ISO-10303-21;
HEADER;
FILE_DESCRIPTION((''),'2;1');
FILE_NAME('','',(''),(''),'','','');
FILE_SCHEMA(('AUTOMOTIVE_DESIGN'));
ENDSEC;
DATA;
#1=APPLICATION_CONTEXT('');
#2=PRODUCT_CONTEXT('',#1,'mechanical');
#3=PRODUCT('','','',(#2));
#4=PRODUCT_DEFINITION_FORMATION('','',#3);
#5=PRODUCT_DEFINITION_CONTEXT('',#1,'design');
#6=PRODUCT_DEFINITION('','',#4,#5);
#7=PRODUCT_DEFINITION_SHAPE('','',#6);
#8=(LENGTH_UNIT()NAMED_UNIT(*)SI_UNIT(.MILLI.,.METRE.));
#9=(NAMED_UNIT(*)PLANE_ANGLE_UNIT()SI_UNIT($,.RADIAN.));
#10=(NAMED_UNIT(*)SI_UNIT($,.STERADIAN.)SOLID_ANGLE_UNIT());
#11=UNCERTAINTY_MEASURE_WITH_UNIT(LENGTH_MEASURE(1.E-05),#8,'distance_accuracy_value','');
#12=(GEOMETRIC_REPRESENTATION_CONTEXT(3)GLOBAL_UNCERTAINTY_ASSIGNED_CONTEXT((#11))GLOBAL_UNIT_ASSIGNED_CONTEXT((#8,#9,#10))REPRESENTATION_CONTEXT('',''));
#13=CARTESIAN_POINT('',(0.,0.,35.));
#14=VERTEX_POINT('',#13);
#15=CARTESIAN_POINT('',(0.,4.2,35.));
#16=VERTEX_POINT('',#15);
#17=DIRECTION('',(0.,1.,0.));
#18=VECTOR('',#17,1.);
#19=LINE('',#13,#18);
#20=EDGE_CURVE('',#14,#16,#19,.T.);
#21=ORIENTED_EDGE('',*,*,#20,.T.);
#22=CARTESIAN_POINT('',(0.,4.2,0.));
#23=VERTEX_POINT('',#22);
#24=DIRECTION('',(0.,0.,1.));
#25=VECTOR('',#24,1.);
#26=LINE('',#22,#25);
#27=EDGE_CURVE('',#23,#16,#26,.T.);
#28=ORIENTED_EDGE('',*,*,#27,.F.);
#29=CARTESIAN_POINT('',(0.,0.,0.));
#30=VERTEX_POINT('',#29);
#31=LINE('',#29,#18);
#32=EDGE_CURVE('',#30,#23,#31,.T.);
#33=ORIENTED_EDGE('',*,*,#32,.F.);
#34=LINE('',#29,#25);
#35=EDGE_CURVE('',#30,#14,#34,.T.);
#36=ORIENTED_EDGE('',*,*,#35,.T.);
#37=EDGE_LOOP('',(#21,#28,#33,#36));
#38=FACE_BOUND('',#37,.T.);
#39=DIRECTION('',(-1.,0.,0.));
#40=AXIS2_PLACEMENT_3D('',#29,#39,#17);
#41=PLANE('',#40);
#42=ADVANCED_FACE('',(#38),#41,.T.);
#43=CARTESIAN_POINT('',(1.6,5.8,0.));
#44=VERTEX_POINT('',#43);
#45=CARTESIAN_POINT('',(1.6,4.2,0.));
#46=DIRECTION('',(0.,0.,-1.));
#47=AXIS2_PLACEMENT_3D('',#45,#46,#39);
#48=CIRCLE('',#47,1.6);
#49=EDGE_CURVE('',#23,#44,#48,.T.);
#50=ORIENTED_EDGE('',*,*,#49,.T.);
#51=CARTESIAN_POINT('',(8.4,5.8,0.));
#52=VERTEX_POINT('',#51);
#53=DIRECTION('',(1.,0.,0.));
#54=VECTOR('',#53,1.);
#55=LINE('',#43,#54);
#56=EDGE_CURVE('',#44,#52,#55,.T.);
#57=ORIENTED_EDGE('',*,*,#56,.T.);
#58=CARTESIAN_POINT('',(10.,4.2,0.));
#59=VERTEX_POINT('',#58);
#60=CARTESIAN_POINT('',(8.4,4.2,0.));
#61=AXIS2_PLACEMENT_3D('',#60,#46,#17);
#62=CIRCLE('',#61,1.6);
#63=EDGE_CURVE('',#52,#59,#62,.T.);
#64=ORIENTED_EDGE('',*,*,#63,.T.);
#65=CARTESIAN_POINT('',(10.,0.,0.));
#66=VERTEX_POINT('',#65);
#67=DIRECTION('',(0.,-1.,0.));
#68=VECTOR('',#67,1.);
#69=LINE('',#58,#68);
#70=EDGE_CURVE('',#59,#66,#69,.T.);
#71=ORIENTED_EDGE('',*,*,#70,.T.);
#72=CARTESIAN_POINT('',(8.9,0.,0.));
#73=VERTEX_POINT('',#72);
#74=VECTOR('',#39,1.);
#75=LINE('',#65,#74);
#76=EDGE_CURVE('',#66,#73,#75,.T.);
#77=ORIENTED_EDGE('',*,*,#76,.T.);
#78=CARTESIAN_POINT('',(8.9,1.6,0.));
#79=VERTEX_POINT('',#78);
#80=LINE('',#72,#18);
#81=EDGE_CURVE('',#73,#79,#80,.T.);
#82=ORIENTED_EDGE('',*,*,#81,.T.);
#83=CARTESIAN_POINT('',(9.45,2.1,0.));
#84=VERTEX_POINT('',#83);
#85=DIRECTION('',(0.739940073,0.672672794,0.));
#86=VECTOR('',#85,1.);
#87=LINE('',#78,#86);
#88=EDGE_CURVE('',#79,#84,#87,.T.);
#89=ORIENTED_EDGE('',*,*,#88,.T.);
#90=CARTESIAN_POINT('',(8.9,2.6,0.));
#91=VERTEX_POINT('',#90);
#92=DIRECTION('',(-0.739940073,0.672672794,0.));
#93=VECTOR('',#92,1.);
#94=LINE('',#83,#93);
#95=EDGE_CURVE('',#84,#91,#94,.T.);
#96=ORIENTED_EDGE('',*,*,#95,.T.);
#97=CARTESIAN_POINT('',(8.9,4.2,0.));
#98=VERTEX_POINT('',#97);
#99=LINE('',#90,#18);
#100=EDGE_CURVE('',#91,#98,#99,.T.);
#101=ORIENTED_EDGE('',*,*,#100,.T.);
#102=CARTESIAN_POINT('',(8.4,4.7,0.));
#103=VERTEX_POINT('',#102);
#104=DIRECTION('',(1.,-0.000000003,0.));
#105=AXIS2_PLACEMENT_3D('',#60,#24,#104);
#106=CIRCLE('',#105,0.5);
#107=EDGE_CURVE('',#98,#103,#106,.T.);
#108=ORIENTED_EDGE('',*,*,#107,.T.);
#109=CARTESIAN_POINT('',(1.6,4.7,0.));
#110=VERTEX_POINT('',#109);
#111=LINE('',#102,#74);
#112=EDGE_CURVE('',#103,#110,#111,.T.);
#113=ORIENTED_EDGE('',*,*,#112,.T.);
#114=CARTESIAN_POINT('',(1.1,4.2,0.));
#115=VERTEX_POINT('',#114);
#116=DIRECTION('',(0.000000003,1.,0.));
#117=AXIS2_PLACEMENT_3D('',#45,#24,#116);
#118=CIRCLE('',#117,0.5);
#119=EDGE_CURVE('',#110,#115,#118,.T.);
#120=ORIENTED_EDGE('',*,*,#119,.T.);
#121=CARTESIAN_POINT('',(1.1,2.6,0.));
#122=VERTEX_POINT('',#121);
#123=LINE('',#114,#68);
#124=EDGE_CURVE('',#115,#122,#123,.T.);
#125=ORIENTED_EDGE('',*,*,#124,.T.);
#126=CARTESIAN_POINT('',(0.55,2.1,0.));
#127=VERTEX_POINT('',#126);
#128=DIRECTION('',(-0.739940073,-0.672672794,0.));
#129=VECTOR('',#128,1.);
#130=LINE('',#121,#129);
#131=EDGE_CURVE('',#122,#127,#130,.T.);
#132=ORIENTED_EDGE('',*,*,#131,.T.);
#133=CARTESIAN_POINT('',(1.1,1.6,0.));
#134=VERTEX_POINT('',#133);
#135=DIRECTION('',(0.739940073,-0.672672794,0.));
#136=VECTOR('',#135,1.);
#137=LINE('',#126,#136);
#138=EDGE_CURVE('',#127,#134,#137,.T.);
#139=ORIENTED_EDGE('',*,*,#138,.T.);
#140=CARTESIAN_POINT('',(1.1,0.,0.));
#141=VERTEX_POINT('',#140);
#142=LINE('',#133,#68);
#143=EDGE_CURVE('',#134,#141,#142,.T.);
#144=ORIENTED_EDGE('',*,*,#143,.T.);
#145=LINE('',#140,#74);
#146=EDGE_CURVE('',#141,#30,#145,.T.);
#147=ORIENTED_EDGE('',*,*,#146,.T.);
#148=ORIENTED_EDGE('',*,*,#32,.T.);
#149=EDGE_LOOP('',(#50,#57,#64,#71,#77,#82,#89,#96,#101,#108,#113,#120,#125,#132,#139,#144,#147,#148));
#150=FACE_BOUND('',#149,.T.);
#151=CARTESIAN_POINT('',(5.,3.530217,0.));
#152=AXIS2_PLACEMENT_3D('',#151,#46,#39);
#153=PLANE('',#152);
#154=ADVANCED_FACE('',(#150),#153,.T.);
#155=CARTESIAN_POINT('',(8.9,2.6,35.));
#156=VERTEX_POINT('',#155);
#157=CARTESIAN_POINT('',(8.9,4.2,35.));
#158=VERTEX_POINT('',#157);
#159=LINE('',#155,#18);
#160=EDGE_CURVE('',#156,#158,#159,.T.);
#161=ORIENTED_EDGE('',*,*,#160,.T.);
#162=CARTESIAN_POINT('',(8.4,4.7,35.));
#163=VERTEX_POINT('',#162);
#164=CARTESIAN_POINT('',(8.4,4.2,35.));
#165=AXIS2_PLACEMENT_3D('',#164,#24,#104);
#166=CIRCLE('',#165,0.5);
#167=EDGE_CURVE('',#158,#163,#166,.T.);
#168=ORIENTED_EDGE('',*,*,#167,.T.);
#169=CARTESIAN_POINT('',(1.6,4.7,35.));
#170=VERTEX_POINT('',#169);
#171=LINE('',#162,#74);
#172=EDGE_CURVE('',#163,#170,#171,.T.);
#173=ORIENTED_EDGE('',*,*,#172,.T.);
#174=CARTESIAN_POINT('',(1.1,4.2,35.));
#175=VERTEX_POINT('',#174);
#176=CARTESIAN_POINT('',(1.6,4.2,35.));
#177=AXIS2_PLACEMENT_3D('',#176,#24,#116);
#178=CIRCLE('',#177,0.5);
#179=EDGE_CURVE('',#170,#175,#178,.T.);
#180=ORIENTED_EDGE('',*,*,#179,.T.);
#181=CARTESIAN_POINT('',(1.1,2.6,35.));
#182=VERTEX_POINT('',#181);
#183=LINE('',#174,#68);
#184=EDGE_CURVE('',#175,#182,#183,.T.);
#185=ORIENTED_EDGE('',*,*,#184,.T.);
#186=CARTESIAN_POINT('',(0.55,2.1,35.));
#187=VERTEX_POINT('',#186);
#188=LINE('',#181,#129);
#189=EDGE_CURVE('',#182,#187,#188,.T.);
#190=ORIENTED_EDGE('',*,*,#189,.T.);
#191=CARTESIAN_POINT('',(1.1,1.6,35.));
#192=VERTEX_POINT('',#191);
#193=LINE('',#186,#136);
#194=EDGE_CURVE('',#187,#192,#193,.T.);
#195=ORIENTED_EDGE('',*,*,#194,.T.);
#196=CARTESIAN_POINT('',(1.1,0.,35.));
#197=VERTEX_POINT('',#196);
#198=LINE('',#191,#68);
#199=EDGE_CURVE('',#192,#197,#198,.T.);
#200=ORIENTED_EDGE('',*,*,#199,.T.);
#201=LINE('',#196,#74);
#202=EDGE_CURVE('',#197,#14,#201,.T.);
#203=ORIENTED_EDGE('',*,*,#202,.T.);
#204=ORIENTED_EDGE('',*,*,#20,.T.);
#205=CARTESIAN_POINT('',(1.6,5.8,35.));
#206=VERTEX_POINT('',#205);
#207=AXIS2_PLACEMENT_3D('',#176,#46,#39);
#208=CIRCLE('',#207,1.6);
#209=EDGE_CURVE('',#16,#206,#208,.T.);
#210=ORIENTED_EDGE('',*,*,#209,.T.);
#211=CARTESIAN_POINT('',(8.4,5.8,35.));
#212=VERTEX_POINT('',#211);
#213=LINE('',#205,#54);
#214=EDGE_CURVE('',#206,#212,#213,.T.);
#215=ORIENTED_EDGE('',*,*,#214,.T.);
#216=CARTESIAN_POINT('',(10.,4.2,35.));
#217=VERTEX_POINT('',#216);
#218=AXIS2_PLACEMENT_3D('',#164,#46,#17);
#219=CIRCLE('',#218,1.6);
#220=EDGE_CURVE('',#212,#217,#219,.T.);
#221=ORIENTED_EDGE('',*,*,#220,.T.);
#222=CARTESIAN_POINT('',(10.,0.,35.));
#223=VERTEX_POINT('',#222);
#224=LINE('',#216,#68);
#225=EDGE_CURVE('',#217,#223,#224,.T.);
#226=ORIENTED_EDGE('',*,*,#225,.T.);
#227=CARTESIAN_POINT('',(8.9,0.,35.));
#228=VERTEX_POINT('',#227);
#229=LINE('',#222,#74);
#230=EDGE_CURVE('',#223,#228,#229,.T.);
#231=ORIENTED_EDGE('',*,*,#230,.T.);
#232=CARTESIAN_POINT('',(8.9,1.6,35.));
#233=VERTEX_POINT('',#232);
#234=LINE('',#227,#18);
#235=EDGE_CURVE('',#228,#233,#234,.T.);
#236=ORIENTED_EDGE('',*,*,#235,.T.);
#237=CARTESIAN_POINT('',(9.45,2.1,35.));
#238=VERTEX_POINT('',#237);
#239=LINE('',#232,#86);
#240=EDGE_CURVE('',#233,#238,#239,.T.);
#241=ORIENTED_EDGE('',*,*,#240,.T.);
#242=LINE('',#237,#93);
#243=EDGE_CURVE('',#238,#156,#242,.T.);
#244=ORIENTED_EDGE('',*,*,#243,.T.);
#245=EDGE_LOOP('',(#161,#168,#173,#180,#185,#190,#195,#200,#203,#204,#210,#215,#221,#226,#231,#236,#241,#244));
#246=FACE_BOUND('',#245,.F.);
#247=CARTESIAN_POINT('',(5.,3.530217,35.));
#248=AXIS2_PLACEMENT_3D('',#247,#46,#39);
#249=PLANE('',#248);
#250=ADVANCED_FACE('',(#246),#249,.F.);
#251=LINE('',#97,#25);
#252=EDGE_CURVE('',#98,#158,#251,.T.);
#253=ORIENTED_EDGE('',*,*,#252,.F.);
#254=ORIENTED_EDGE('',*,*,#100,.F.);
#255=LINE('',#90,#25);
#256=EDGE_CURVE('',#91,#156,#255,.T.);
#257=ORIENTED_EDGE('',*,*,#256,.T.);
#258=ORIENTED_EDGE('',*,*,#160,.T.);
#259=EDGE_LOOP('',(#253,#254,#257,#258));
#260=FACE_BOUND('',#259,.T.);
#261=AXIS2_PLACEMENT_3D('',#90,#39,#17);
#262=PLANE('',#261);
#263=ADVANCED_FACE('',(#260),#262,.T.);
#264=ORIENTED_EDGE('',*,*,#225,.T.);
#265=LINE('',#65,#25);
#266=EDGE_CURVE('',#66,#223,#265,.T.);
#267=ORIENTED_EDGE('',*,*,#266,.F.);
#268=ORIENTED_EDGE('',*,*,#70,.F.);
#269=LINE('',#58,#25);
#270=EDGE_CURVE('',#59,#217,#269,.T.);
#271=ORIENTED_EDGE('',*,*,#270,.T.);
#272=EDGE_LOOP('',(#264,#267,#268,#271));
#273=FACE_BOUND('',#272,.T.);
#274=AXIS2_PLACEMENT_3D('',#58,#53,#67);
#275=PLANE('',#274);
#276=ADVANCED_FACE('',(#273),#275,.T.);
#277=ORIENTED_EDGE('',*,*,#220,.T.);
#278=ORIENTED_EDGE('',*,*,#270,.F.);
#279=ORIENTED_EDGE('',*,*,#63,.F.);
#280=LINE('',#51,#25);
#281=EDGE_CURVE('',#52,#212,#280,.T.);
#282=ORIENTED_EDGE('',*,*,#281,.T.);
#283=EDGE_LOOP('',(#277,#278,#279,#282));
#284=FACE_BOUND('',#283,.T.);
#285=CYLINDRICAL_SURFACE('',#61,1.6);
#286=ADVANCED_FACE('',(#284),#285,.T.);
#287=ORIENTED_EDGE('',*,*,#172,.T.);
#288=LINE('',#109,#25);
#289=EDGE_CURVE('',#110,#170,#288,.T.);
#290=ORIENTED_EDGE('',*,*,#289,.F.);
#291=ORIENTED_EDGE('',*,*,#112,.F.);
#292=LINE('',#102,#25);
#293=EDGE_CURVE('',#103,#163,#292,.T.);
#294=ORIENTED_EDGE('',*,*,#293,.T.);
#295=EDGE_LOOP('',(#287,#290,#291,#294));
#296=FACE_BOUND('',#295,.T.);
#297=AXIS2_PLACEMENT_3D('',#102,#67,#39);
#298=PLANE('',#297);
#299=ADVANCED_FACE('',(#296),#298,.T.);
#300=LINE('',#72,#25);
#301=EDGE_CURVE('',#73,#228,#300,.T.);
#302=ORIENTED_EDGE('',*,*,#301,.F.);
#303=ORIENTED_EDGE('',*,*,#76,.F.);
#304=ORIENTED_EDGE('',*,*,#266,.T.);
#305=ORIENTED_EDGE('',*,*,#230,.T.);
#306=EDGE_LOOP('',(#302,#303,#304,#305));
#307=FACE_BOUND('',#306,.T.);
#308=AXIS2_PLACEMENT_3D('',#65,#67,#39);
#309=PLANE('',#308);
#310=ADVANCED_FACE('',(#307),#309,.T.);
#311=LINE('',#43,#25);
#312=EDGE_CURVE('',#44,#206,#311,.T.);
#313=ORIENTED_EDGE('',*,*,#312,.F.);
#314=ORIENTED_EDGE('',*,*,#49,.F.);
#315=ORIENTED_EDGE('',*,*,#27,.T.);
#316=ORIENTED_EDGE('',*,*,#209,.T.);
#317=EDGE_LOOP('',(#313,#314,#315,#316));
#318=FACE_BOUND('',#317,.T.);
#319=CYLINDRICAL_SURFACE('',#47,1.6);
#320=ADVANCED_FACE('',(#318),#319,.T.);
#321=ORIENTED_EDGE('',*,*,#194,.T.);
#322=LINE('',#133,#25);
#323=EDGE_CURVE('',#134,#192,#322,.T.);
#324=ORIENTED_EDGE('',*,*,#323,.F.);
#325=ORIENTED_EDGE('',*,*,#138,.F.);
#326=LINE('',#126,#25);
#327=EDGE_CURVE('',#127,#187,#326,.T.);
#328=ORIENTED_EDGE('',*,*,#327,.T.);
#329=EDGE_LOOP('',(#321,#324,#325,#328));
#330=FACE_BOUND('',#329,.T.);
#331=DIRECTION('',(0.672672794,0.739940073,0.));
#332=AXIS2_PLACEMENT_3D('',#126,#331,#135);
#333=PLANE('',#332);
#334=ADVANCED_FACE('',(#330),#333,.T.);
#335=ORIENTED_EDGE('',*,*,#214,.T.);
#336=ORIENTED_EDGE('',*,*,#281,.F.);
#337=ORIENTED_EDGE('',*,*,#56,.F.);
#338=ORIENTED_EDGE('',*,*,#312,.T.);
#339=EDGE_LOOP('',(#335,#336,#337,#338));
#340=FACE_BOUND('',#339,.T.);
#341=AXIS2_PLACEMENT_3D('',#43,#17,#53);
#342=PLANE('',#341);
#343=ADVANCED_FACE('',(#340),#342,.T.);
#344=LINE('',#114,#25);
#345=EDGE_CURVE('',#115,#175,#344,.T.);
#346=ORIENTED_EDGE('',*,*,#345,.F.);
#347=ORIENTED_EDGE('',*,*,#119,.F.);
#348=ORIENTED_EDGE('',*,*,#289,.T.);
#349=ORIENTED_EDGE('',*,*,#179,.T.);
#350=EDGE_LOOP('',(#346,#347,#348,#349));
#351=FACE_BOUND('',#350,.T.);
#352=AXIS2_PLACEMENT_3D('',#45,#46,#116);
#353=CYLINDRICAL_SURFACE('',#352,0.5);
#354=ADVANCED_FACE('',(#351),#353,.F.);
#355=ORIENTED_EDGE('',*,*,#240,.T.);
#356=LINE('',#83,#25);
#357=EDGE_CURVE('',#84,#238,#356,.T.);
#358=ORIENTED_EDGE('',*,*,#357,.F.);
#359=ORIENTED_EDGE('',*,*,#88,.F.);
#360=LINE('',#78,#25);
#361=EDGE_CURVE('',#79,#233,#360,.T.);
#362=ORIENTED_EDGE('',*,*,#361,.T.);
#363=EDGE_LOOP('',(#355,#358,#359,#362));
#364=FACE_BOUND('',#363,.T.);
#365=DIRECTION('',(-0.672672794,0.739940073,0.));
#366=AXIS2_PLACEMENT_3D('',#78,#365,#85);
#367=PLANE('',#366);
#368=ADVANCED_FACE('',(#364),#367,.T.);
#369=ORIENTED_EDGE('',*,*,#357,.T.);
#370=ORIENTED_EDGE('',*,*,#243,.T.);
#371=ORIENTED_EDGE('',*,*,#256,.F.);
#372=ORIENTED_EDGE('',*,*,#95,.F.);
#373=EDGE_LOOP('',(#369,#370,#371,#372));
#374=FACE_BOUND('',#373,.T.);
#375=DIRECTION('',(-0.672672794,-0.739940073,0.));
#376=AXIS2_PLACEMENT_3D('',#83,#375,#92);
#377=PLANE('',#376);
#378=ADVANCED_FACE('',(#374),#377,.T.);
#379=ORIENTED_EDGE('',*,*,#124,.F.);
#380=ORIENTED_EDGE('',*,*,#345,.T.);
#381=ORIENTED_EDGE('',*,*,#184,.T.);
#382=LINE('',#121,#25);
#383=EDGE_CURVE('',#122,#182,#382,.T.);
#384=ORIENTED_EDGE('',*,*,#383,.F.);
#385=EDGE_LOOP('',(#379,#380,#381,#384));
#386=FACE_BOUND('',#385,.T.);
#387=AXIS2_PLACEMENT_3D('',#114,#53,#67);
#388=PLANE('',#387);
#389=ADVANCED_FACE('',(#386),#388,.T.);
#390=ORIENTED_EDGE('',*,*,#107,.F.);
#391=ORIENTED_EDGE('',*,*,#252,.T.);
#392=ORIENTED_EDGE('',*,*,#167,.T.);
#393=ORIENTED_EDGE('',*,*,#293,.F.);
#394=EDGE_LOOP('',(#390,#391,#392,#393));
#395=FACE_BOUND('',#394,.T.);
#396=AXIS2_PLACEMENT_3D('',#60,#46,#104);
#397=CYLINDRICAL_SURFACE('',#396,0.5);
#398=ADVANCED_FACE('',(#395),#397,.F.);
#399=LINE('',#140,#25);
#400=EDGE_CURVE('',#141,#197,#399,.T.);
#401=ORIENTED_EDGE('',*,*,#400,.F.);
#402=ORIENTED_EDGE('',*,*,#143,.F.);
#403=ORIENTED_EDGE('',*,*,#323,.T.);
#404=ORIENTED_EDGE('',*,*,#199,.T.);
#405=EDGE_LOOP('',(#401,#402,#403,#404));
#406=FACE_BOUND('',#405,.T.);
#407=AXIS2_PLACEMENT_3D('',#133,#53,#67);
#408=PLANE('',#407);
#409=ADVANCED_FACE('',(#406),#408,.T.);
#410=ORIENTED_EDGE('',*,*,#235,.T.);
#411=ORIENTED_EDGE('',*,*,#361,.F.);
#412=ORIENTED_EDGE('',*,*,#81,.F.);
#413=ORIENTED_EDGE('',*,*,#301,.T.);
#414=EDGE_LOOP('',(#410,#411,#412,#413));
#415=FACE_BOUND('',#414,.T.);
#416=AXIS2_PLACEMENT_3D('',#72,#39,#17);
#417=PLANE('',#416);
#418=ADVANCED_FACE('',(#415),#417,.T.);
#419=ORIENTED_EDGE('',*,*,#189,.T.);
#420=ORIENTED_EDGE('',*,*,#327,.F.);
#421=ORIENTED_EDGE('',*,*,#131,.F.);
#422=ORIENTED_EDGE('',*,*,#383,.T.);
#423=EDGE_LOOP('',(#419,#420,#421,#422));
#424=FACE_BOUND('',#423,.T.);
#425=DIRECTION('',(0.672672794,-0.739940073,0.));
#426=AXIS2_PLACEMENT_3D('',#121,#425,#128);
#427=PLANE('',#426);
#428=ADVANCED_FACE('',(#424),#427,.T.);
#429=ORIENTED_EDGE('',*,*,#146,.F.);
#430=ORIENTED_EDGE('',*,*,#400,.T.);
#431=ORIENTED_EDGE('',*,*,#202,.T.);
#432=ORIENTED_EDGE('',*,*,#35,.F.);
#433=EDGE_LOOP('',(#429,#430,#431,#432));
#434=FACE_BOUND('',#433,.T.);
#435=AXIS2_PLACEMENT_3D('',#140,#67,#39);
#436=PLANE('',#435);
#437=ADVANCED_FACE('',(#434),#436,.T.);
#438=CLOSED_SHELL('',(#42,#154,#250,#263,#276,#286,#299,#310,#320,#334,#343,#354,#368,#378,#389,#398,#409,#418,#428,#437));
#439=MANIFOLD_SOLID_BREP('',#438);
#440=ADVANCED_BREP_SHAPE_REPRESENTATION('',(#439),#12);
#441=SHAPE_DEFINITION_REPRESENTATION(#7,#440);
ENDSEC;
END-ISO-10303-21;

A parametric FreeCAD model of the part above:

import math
import FreeCAD as App
import Part
import Sketcher
from FreeCAD import Vector

doc = App.newDocument("Part")
body = doc.addObject("PartDesign::Body", "Body")

sketch1 = body.newObject("Sketcher::SketchObject", "Sketch")
sketch1.AttachmentSupport = (doc.getObject("XY_Plane"), [""])
sketch1.MapMode = "FlatFace"
sketch1.addGeometry(Part.LineSegment(Vector(8.4, 5.8, 0), Vector(1.6, 5.8, 0)), False)
sketch1.addGeometry(Part.ArcOfCircle(Part.Circle(Vector(1.6, 4.2, 0), Vector(0, 0, 1), 1.6), math.radians(90), math.radians(180)), False)
sketch1.addGeometry(Part.LineSegment(Vector(0, 4.2, 0), Vector(0, 0, 0)), False)
sketch1.addGeometry(Part.LineSegment(Vector(0, 0, 0), Vector(1.1, 0, 0)), False)
sketch1.addGeometry(Part.LineSegment(Vector(1.1, 0, 0), Vector(1.1, 1.6, 0)), False)
sketch1.addGeometry(Part.LineSegment(Vector(1.1, 1.6, 0), Vector(0.55, 2.1, 0)), False)
sketch1.addGeometry(Part.LineSegment(Vector(0.55, 2.1, 0), Vector(1.1, 2.6, 0)), False)
sketch1.addGeometry(Part.LineSegment(Vector(1.1, 2.6, 0), Vector(1.1, 4.2, 0)), False)
sketch1.addGeometry(Part.ArcOfCircle(Part.Circle(Vector(1.6, 4.2, 0), Vector(0, 0, 1), 0.5), math.radians(90), math.radians(180)), False)
sketch1.addGeometry(Part.LineSegment(Vector(1.6, 4.7, 0), Vector(8.4, 4.7, 0)), False)
sketch1.addGeometry(Part.ArcOfCircle(Part.Circle(Vector(8.4, 4.2, 0), Vector(0, 0, 1), 0.5), math.radians(0), math.radians(90)), False)
sketch1.addGeometry(Part.LineSegment(Vector(8.9, 4.2, 0), Vector(8.9, 2.6, 0)), False)
sketch1.addGeometry(Part.LineSegment(Vector(8.9, 2.6, 0), Vector(9.45, 2.1, 0)), False)
sketch1.addGeometry(Part.LineSegment(Vector(9.45, 2.1, 0), Vector(8.9, 1.6, 0)), False)
sketch1.addGeometry(Part.LineSegment(Vector(8.9, 1.6, 0), Vector(8.9, 0, 0)), False)
sketch1.addGeometry(Part.LineSegment(Vector(8.9, 0, 0), Vector(10, 0, 0)), False)
sketch1.addGeometry(Part.LineSegment(Vector(10, 0, 0), Vector(10, 4.2, 0)), False)
sketch1.addGeometry(Part.ArcOfCircle(Part.Circle(Vector(8.4, 4.2, 0), Vector(0, 0, 1), 1.6), math.radians(0), math.radians(90)), False)
sketch1.addConstraint(Sketcher.Constraint("Tangent", 0, 2, 1, 1))
sketch1.addConstraint(Sketcher.Constraint("Tangent", 1, 2, 2, 1))
sketch1.addConstraint(Sketcher.Constraint("Coincident", 2, 2, 3, 1))
sketch1.addConstraint(Sketcher.Constraint("Coincident", 3, 2, 4, 1))
sketch1.addConstraint(Sketcher.Constraint("Coincident", 4, 2, 5, 1))
sketch1.addConstraint(Sketcher.Constraint("Coincident", 5, 2, 6, 1))
sketch1.addConstraint(Sketcher.Constraint("Coincident", 6, 2, 7, 1))
sketch1.addConstraint(Sketcher.Constraint("Tangent", 7, 2, 8, 2))
sketch1.addConstraint(Sketcher.Constraint("Tangent", 8, 1, 9, 1))
sketch1.addConstraint(Sketcher.Constraint("Tangent", 9, 2, 10, 2))
sketch1.addConstraint(Sketcher.Constraint("Tangent", 10, 1, 11, 1))
sketch1.addConstraint(Sketcher.Constraint("Coincident", 11, 2, 12, 1))
sketch1.addConstraint(Sketcher.Constraint("Coincident", 12, 2, 13, 1))
sketch1.addConstraint(Sketcher.Constraint("Coincident", 13, 2, 14, 1))
sketch1.addConstraint(Sketcher.Constraint("Coincident", 14, 2, 15, 1))
sketch1.addConstraint(Sketcher.Constraint("Coincident", 15, 2, 16, 1))
sketch1.addConstraint(Sketcher.Constraint("Tangent", 16, 2, 17, 1))
sketch1.addConstraint(Sketcher.Constraint("Tangent", 17, 2, 0, 1))
sketch1.addConstraint(Sketcher.Constraint("Horizontal", 0))
sketch1.addConstraint(Sketcher.Constraint("Vertical", 2))
sketch1.addConstraint(Sketcher.Constraint("Horizontal", 3))
sketch1.addConstraint(Sketcher.Constraint("Vertical", 4))
sketch1.addConstraint(Sketcher.Constraint("Vertical", 7))
sketch1.addConstraint(Sketcher.Constraint("Horizontal", 9))
sketch1.addConstraint(Sketcher.Constraint("Vertical", 11))
sketch1.addConstraint(Sketcher.Constraint("Vertical", 14))
sketch1.addConstraint(Sketcher.Constraint("Horizontal", 15))
sketch1.addConstraint(Sketcher.Constraint("Vertical", 16))
sketch1.addConstraint(Sketcher.Constraint("Coincident", 2, 2, -1, 1))
sketch1.addConstraint(Sketcher.Constraint("Coincident", 8, 3, 1, 3))
sketch1.addConstraint(Sketcher.Constraint("Coincident", 17, 3, 10, 3))
sketch1.addConstraint(Sketcher.Constraint("Equal", 8, 10))
sketch1.addConstraint(Sketcher.Constraint("PointOnObject", 14, 2, -1))
sketch1.addConstraint(Sketcher.Constraint("Parallel", 5, 12))
sketch1.addConstraint(Sketcher.Constraint("Parallel", 6, 13))
sketch1.addConstraint(Sketcher.Constraint("Horizontal", 6, 2, 11, 2))
sketch1.addConstraint(Sketcher.Constraint("Horizontal", 5, 2, 12, 2))
sketch1.addConstraint(Sketcher.Constraint("Horizontal", 4, 2, 13, 2))
sketch1.addConstraint(Sketcher.Constraint("Vertical", 4, 2, 6, 2))
sketch1.addConstraint(Sketcher.Constraint("Vertical", 11, 2, 13, 2))
sketch1.addConstraint(Sketcher.Constraint("Equal", 4, 7))
sketch1.addConstraint(Sketcher.Constraint("Radius", 1, 1.6))
sketch1.addConstraint(Sketcher.Constraint("Radius", 8, 0.5))
sketch1.addConstraint(Sketcher.Constraint("DistanceX", 0, 2, 0, 1, 6.8))
sketch1.addConstraint(Sketcher.Constraint("DistanceY", 2, 2, 2, 1, 4.2))
sketch1.addConstraint(Sketcher.Constraint("DistanceY", 4, 1, 4, 2, 1.6))
sketch1.addConstraint(Sketcher.Constraint("DistanceX", -1, 1, 5, 2, 0.55))
pad1 = body.newObject("PartDesign::Pad", "Pad")
pad1.Profile = sketch1
pad1.Length = 35

doc.recompute()
